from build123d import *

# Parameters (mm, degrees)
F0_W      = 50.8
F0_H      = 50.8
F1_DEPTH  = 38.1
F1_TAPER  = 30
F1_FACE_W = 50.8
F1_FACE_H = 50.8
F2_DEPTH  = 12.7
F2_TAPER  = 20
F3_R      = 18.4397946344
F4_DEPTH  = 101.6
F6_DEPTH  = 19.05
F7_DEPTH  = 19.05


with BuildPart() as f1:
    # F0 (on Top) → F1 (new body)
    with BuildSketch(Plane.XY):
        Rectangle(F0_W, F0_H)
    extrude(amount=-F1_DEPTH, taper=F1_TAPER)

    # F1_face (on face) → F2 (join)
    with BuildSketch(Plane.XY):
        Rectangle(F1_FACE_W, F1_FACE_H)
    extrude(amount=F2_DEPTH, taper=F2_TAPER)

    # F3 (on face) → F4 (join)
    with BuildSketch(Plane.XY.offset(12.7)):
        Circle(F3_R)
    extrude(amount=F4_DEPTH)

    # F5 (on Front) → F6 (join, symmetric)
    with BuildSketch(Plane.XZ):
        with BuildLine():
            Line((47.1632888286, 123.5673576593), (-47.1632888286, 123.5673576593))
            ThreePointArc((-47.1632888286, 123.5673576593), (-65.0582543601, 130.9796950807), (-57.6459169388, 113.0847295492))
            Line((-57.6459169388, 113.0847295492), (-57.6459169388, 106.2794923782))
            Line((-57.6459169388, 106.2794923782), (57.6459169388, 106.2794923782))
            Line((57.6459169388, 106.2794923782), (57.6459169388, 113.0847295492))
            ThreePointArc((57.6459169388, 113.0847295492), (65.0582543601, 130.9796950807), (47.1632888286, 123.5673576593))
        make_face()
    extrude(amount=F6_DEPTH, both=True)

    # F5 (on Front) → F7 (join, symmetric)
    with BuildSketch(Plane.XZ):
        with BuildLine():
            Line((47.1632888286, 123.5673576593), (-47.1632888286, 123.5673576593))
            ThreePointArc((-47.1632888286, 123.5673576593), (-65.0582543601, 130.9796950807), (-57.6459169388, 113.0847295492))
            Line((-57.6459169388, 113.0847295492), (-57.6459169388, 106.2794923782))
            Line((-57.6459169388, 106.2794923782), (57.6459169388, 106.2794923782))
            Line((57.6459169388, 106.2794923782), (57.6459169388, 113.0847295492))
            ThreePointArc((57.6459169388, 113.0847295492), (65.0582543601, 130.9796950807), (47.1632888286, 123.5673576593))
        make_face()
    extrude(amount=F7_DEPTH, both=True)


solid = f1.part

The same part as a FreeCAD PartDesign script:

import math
import FreeCAD as App
import Part
import Sketcher
Q = App.Units.Quantity


def add_polygon(sketch, points):
    """Adds a closed chain of lines whose ends are joined by coincident constraints."""
    first, n = sketch.GeometryCount, len(points)
    for a, b in zip(points, points[1:] + points[:1]):
        sketch.addGeometry(Part.LineSegment(App.Vector(*a, 0), App.Vector(*b, 0)), False)
    for i in range(n):
        sketch.addConstraint(Sketcher.Constraint("Coincident", first + i, 2, first + (i + 1) % n, 1))

doc = App.newDocument("Part")
body = doc.addObject("PartDesign::Body", "Body")

sketch1 = doc.addObject("Sketcher::SketchObject", "Sketch")
body.addObject(sketch1)
sketch1.AttachmentSupport = (doc.XY_Plane, [""])
sketch1.MapMode = "FlatFace"
add_polygon(sketch1, [(-25, 25), (-25, -25), (25, -25), (25, 25)])
sketch1.addConstraint(Sketcher.Constraint("Vertical", 0))
sketch1.addConstraint(Sketcher.Constraint("Horizontal", 1))
sketch1.addConstraint(Sketcher.Constraint("Vertical", 2))
sketch1.addConstraint(Sketcher.Constraint("Horizontal", 3))
sketch1.addConstraint(Sketcher.Constraint("Symmetric", 0, 2, 2, 2, -1, 1))
sketch1.addConstraint(Sketcher.Constraint("Equal", 3, 0))
sketch1.addConstraint(Sketcher.Constraint("DistanceX", 1, 1, 1, 2, Q("2 in")))
pad1 = doc.addObject("PartDesign::Pad", "Pad")
body.addObject(pad1)
pad1.Profile = sketch1
pad1.Length = Q("1.5 in")
pad1.Reversed = True
pad1.TaperAngle = -30

sketch2 = doc.addObject("Sketcher::SketchObject", "Sketch001")
body.addObject(sketch2)
sketch2.AttachmentSupport = (doc.XY_Plane, [""])
sketch2.MapMode = "FlatFace"
add_polygon(sketch2, [(-25, 25), (-25, -25), (25, -25), (25, 25)])
sketch2.addConstraint(Sketcher.Constraint("Vertical", 0))
sketch2.addConstraint(Sketcher.Constraint("Horizontal", 1))
sketch2.addConstraint(Sketcher.Constraint("Vertical", 2))
sketch2.addConstraint(Sketcher.Constraint("Horizontal", 3))
sketch2.addConstraint(Sketcher.Constraint("Symmetric", 0, 2, 2, 2, -1, 1))
sketch2.addConstraint(Sketcher.Constraint("Equal", 3, 0))
sketch2.addConstraint(Sketcher.Constraint("DistanceX", 1, 1, 1, 2, Q("2 in")))
pad2 = doc.addObject("PartDesign::Pad", "Pad001")
body.addObject(pad2)
pad2.Profile = sketch2
pad2.Length = Q("0.5 in")
pad2.TaperAngle = -20

sketch3 = doc.addObject("Sketcher::SketchObject", "Sketch002")
body.addObject(sketch3)
sketch3.AttachmentSupport = (doc.XY_Plane, [""])
sketch3.MapMode = "FlatFace"
sketch3.AttachmentOffset = App.Placement(App.Vector(0, 0, 0.5 * 25.4), App.Rotation())
sketch3.addGeometry(Part.Circle(App.Vector(0, 0, 0), App.Vector(0, 0, 1), 18), False)
sketch3.addConstraint(Sketcher.Constraint("Coincident", 0, 3, -1, 1))
sketch3.addConstraint(Sketcher.Constraint("Diameter", 0, Q("36.879589 mm")))
pad3 = doc.addObject("PartDesign::Pad", "Pad002")
body.addObject(pad3)
pad3.Profile = sketch3
pad3.Length = Q("4 in")

sketch4 = doc.addObject("Sketcher::SketchObject", "Sketch003")
body.addObject(sketch4)
sketch4.AttachmentSupport = (doc.XZ_Plane, [""])
sketch4.MapMode = "FlatFace"
sketch4.addGeometry(Part.LineSegment(App.Vector(47, 124, 0), App.Vector(-47, 124, 0)), False)
sketch4.addGeometry(Part.ArcOfCircle(Part.Circle(App.Vector(-58, 124, 0), App.Vector(0, 0, 1), 10), math.radians(0), math.radians(270)), False)
sketch4.addGeometry(Part.LineSegment(App.Vector(-58, 113, 0), App.Vector(-58, 106, 0)), False)
sketch4.addGeometry(Part.LineSegment(App.Vector(-58, 106, 0), App.Vector(58, 106, 0)), False)
sketch4.addGeometry(Part.LineSegment(App.Vector(58, 106, 0), App.Vector(58, 113, 0)), False)
sketch4.addGeometry(Part.ArcOfCircle(Part.Circle(App.Vector(58, 124, 0), App.Vector(0, 0, 1), 10), math.radians(-90), math.radians(180)), False)
sketch4.addConstraint(Sketcher.Constraint("Coincident", 0, 2, 1, 1))
sketch4.addConstraint(Sketcher.Constraint("Coincident", 1, 2, 2, 1))
sketch4.addConstraint(Sketcher.Constraint("Coincident", 2, 2, 3, 1))
sketch4.addConstraint(Sketcher.Constraint("Coincident", 3, 2, 4, 1))
sketch4.addConstraint(Sketcher.Constraint("Coincident", 4, 2, 5, 1))
sketch4.addConstraint(Sketcher.Constraint("Coincident", 5, 2, 0, 1))
sketch4.addConstraint(Sketcher.Constraint("Horizontal", 0))
sketch4.addConstraint(Sketcher.Constraint("Vertical", 2))
sketch4.addConstraint(Sketcher.Constraint("Horizontal", 3))
sketch4.addConstraint(Sketcher.Constraint("Vertical", 4))
sketch4.addConstraint(Sketcher.Constraint("Equal", 1, 5))
sketch4.addConstraint(Sketcher.Constraint("Symmetric", 1, 3, 5, 3, -2))
sketch4.addConstraint(Sketcher.Constraint("Horizontal", 5, 3, 0, 2))
sketch4.addConstraint(Sketcher.Constraint("Vertical", 5, 3, 3, 2))
sketch4.addConstraint(Sketcher.Constraint("Radius", 1, Q("10.482628 mm")))
sketch4.addConstraint(Sketcher.Constraint("DistanceX", 0, 2, 0, 1, Q("94.326578 mm")))
sketch4.addConstraint(Sketcher.Constraint("DistanceX", 3, 1, 3, 2, Q("115.291834 mm")))
sketch4.addConstraint(Sketcher.Constraint("DistanceY", 2, 2, 2, 1, Q("6.805237 mm")))
sketch4.addConstraint(Sketcher.Constraint("DistanceY", -1, 1, 1, 2, Q("113.08473 mm")))
pad4 = doc.addObject("PartDesign::Pad", "Pad003")
body.addObject(pad4)
pad4.Profile = sketch4
pad4.Length = Q("1.5 in")
pad4.Midplane = True

sketch5 = doc.addObject("Sketcher::SketchObject", "Sketch004")
body.addObject(sketch5)
sketch5.AttachmentSupport = (doc.XZ_Plane, [""])
sketch5.MapMode = "FlatFace"
sketch5.addGeometry(Part.LineSegment(App.Vector(47, 124, 0), App.Vector(-47, 124, 0)), False)
sketch5.addGeometry(Part.ArcOfCircle(Part.Circle(App.Vector(-58, 124, 0), App.Vector(0, 0, 1), 10), math.radians(0), math.radians(270)), False)
sketch5.addGeometry(Part.LineSegment(App.Vector(-58, 113, 0), App.Vector(-58, 106, 0)), False)
sketch5.addGeometry(Part.LineSegment(App.Vector(-58, 106, 0), App.Vector(58, 106, 0)), False)
sketch5.addGeometry(Part.LineSegment(App.Vector(58, 106, 0), App.Vector(58, 113, 0)), False)
sketch5.addGeometry(Part.ArcOfCircle(Part.Circle(App.Vector(58, 124, 0), App.Vector(0, 0, 1), 10), math.radians(-90), math.radians(180)), False)
sketch5.addConstraint(Sketcher.Constraint("Coincident", 0, 2, 1, 1))
sketch5.addConstraint(Sketcher.Constraint("Coincident", 1, 2, 2, 1))
sketch5.addConstraint(Sketcher.Constraint("Coincident", 2, 2, 3, 1))
sketch5.addConstraint(Sketcher.Constraint("Coincident", 3, 2, 4, 1))
sketch5.addConstraint(Sketcher.Constraint("Coincident", 4, 2, 5, 1))
sketch5.addConstraint(Sketcher.Constraint("Coincident", 5, 2, 0, 1))
sketch5.addConstraint(Sketcher.Constraint("Horizontal", 0))
sketch5.addConstraint(Sketcher.Constraint("Vertical", 2))
sketch5.addConstraint(Sketcher.Constraint("Horizontal", 3))
sketch5.addConstraint(Sketcher.Constraint("Vertical", 4))
sketch5.addConstraint(Sketcher.Constraint("Equal", 1, 5))
sketch5.addConstraint(Sketcher.Constraint("Symmetric", 1, 3, 5, 3, -2))
sketch5.addConstraint(Sketcher.Constraint("Horizontal", 5, 3, 0, 2))
sketch5.addConstraint(Sketcher.Constraint("Vertical", 5, 3, 3, 2))
sketch5.addConstraint(Sketcher.Constraint("Radius", 1, Q("10.482628 mm")))
sketch5.addConstraint(Sketcher.Constraint("DistanceX", 0, 2, 0, 1, Q("94.326578 mm")))
sketch5.addConstraint(Sketcher.Constraint("DistanceX", 3, 1, 3, 2, Q("115.291834 mm")))
sketch5.addConstraint(Sketcher.Constraint("DistanceY", 2, 2, 2, 1, Q("6.805237 mm")))
sketch5.addConstraint(Sketcher.Constraint("DistanceY", -1, 1, 1, 2, Q("113.08473 mm")))
pad5 = doc.addObject("PartDesign::Pad", "Pad004")
body.addObject(pad5)
pad5.Profile = sketch5
pad5.Length = Q("1.5 in")
pad5.Midplane = True

doc.recompute()
